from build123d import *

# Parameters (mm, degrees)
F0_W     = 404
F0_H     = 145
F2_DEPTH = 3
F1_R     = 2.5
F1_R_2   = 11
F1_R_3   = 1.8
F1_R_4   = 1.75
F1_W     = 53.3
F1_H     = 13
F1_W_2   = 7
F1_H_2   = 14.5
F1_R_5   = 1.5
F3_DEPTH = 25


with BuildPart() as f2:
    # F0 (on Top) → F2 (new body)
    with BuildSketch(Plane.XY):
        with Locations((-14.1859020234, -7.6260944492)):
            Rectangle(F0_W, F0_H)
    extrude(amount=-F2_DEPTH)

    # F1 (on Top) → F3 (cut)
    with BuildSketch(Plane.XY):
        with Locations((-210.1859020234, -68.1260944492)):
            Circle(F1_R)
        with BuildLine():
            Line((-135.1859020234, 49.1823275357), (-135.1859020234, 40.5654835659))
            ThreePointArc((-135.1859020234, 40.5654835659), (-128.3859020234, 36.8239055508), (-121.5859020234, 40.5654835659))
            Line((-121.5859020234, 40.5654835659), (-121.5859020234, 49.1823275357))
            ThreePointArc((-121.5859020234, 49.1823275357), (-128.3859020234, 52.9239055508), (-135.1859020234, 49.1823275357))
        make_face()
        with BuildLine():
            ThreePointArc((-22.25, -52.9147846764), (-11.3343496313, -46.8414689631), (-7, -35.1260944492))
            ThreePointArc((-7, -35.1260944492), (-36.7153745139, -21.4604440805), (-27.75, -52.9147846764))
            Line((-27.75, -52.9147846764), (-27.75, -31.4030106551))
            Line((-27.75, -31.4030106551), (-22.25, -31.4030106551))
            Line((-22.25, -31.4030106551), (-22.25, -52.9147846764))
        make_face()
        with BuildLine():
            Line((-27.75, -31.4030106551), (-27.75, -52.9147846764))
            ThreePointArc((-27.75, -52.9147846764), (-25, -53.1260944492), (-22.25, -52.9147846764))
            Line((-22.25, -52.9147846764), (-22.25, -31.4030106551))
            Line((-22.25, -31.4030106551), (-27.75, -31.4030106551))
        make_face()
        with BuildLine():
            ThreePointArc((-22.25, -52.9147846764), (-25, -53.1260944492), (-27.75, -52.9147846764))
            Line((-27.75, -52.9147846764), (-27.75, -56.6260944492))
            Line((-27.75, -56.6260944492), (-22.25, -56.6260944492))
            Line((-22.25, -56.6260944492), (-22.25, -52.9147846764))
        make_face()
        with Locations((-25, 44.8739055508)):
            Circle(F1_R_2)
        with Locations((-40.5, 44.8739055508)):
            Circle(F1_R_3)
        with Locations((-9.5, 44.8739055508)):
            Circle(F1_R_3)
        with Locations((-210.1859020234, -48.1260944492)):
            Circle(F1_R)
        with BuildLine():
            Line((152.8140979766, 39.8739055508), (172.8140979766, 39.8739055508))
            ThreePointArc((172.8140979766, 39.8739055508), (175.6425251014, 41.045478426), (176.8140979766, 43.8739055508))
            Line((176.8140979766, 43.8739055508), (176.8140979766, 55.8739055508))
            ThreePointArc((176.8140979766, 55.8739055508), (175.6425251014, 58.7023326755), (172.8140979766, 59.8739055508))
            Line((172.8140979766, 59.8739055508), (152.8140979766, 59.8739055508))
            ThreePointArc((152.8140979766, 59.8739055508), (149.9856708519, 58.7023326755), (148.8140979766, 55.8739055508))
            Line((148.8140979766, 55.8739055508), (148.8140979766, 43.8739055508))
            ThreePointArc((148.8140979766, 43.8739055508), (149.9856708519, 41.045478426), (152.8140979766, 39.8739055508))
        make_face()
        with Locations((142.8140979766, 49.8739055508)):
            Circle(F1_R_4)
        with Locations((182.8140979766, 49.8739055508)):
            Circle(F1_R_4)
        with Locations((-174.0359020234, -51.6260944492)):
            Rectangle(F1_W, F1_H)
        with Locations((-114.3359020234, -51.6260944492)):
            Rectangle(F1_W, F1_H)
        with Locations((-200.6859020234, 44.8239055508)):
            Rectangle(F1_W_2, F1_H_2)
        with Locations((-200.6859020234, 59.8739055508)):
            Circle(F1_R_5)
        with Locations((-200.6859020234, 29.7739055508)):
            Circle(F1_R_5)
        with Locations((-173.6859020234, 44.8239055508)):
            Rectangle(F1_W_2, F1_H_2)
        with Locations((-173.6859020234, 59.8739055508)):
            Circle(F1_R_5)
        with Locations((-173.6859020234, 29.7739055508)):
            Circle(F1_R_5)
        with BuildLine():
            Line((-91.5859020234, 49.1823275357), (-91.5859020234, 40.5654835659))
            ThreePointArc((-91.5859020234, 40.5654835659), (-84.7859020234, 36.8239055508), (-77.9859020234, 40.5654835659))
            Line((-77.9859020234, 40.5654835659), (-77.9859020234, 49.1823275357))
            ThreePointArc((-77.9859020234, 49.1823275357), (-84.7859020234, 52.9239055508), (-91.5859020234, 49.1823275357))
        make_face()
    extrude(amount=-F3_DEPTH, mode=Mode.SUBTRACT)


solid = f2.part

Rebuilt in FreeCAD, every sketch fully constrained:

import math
import FreeCAD as App
import Part
import Sketcher

V = App.Vector


def add_polygon(sketch, points):
    """Adds a closed chain of lines whose ends are joined by coincident constraints."""
    first, n = sketch.GeometryCount, len(points)
    for a, b in zip(points, points[1:] + points[:1]):
        sketch.addGeometry(Part.LineSegment(App.Vector(*a, 0), App.Vector(*b, 0)), False)
    for i in range(n):
        sketch.addConstraint(Sketcher.Constraint("Coincident", first + i, 2, first + (i + 1) % n, 1))

doc = App.newDocument("Part")
body = doc.addObject("PartDesign::Body", "Body")

sketch1 = doc.addObject("Sketcher::SketchObject", "Sketch")
body.addObject(sketch1)
sketch1.AttachmentSupport = (doc.XY_Plane, [""])
sketch1.MapMode = "FlatFace"
add_polygon(sketch1, [(-216.185902, 64.873906), (-216.185902, -80.126094), (187.814098, -80.126094), (187.814098, 64.873906)])
sketch1.addConstraint(Sketcher.Constraint("Vertical", 0))
sketch1.addConstraint(Sketcher.Constraint("Horizontal", 1))
sketch1.addConstraint(Sketcher.Constraint("Vertical", 2))
sketch1.addConstraint(Sketcher.Constraint("Horizontal", 3))
sketch1.addConstraint(Sketcher.Constraint("DistanceX", 1, 1, 1, 2, 404.0))
sketch1.addConstraint(Sketcher.Constraint("DistanceY", 0, 2, 0, 1, 145.0))
sketch1.addConstraint(Sketcher.Constraint("DistanceX", 0, 2, -1, 1, 216.185902))
sketch1.addConstraint(Sketcher.Constraint("DistanceY", 0, 2, -1, 1, 80.126094))
pad1 = doc.addObject("PartDesign::Pad", "Pad")
body.addObject(pad1)
pad1.Profile = sketch1
pad1.Length = 3
pad1.Reversed = True

sketch2 = doc.addObject("Sketcher::SketchObject", "Sketch001")
body.addObject(sketch2)
sketch2.AttachmentSupport = (doc.XY_Plane, [""])
sketch2.MapMode = "FlatFace"
sketch2.addGeometry(Part.Circle(V(-210.185902, -68.126094, 0), V(0, 0, 1), 2.5), False)
sketch2.addGeometry(Part.LineSegment(V(-135.185902, 49.182328, 0), V(-135.185902, 40.565484, 0)), False)
sketch2.addGeometry(Part.ArcOfCircle(Part.Circle(V(-128.385902, 44.873906, 0), V(0, 0, 1), 8.05), math.radians(-147.642002), math.radians(-32.357998)), False)
sketch2.addGeometry(Part.LineSegment(V(-121.585902, 40.565484, 0), V(-121.585902, 49.182328, 0)), False)
sketch2.addGeometry(Part.ArcOfCircle(Part.Circle(V(-128.385902, 44.873906, 0), V(0, 0, 1), 8.05), math.radians(32.357998), math.radians(147.642002)), False)
sketch2.addGeometry(Part.ArcOfCircle(Part.Circle(V(-25, -35.126094, 0), V(0, 0, 1), 18), math.radians(-81.212063), math.radians(0)), False)
sketch2.addGeometry(Part.ArcOfCircle(Part.Circle(V(-25, -35.126094, 0), V(0, 0, 1), 18), math.radians(0), math.radians(261.212063)), False)
sketch2.addGeometry(Part.LineSegment(V(-27.75, -52.914785, 0), V(-27.75, -56.626094, 0)), False)
sketch2.addGeometry(Part.LineSegment(V(-27.75, -56.626094, 0), V(-22.25, -56.626094, 0)), False)
sketch2.addGeometry(Part.LineSegment(V(-22.25, -56.626094, 0), V(-22.25, -52.914785, 0)), False)
sketch2.addGeometry(Part.Circle(V(-25, 44.873906, 0), V(0, 0, 1), 11), False)
sketch2.addGeometry(Part.Circle(V(-40.5, 44.873906, 0), V(0, 0, 1), 1.8), False)
sketch2.addGeometry(Part.Circle(V(-9.5, 44.873906, 0), V(0, 0, 1), 1.8), False)
sketch2.addGeometry(Part.Circle(V(-210.185902, -48.126094, 0), V(0, 0, 1), 2.5), False)
sketch2.addGeometry(Part.LineSegment(V(152.814098, 39.873906, 0), V(172.814098, 39.873906, 0)), False)
sketch2.addGeometry(Part.ArcOfCircle(Part.Circle(V(172.814098, 43.873906, 0), V(0, 0, 1), 4), math.radians(-90), math.radians(0)), False)
sketch2.addGeometry(Part.LineSegment(V(176.814098, 43.873906, 0), V(176.814098, 55.873906, 0)), False)
sketch2.addGeometry(Part.ArcOfCircle(Part.Circle(V(172.814098, 55.873906, 0), V(0, 0, 1), 4), math.radians(0), math.radians(90)), False)
sketch2.addGeometry(Part.LineSegment(V(172.814098, 59.873906, 0), V(152.814098, 59.873906, 0)), False)
sketch2.addGeometry(Part.ArcOfCircle(Part.Circle(V(152.814098, 55.873906, 0), V(0, 0, 1), 4), math.radians(90), math.radians(180)), False)
sketch2.addGeometry(Part.LineSegment(V(148.814098, 55.873906, 0), V(148.814098, 43.873906, 0)), False)
sketch2.addGeometry(Part.ArcOfCircle(Part.Circle(V(152.814098, 43.873906, 0), V(0, 0, 1), 4), math.radians(180), math.radians(270)), False)
sketch2.addGeometry(Part.Circle(V(142.814098, 49.873906, 0), V(0, 0, 1), 1.75), False)
sketch2.addGeometry(Part.Circle(V(182.814098, 49.873906, 0), V(0, 0, 1), 1.75), False)
add_polygon(sketch2, [(-200.685902, -45.126094), (-200.685902, -58.126094), (-147.385902, -58.126094), (-147.385902, -45.126094)])
add_polygon(sketch2, [(-140.985902, -45.126094), (-140.985902, -58.126094), (-87.685902, -58.126094), (-87.685902, -45.126094)])
add_polygon(sketch2, [(-204.185902, 52.073906), (-204.185902, 37.573906), (-197.185902, 37.573906), (-197.185902, 52.073906)])
sketch2.addGeometry(Part.Circle(V(-200.685902, 59.873906, 0), V(0, 0, 1), 1.5), False)
sketch2.addGeometry(Part.Circle(V(-200.685902, 29.773906, 0), V(0, 0, 1), 1.5), False)
add_polygon(sketch2, [(-177.185902, 52.073906), (-177.185902, 37.573906), (-170.185902, 37.573906), (-170.185902, 52.073906)])
sketch2.addGeometry(Part.Circle(V(-173.685902, 59.873906, 0), V(0, 0, 1), 1.5), False)
sketch2.addGeometry(Part.Circle(V(-173.685902, 29.773906, 0), V(0, 0, 1), 1.5), False)
sketch2.addGeometry(Part.LineSegment(V(-91.585902, 49.182328, 0), V(-91.585902, 40.565484, 0)), False)
sketch2.addGeometry(Part.ArcOfCircle(Part.Circle(V(-84.785902, 44.873906, 0), V(0, 0, 1), 8.05), math.radians(-147.642002), math.radians(-32.357998)), False)
sketch2.addGeometry(Part.LineSegment(V(-77.985902, 40.565484, 0), V(-77.985902, 49.182328, 0)), False)
sketch2.addGeometry(Part.ArcOfCircle(Part.Circle(V(-84.785902, 44.873906, 0), V(0, 0, 1), 8.05), math.radians(32.357998), math.radians(147.642002)), False)
sketch2.addConstraint(Sketcher.Constraint("Coincident", 1, 2, 2, 1))
sketch2.addConstraint(Sketcher.Constraint("Coincident", 2, 2, 3, 1))
sketch2.addConstraint(Sketcher.Constraint("Coincident", 3, 2, 4, 1))
sketch2.addConstraint(Sketcher.Constraint("Coincident", 4, 2, 1, 1))
sketch2.addConstraint(Sketcher.Constraint("Tangent", 5, 2, 6, 1))
sketch2.addConstraint(Sketcher.Constraint("Coincident", 6, 2, 7, 1))
sketch2.addConstraint(Sketcher.Constraint("Coincident", 7, 2, 8, 1))
sketch2.addConstraint(Sketcher.Constraint("Coincident", 8, 2, 9, 1))
sketch2.addConstraint(Sketcher.Constraint("Coincident", 9, 2, 5, 1))
sketch2.addConstraint(Sketcher.Constraint("Tangent", 14, 2, 15, 1))
sketch2.addConstraint(Sketcher.Constraint("Tangent", 15, 2, 16, 1))
sketch2.addConstraint(Sketcher.Constraint("Tangent", 16, 2, 17, 1))
sketch2.addConstraint(Sketcher.Constraint("Tangent", 17, 2, 18, 1))
sketch2.addConstraint(Sketcher.Constraint("Tangent", 18, 2, 19, 1))
sketch2.addConstraint(Sketcher.Constraint("Tangent", 19, 2, 20, 1))
sketch2.addConstraint(Sketcher.Constraint("Tangent", 20, 2, 21, 1))
sketch2.addConstraint(Sketcher.Constraint("Tangent", 21, 2, 14, 1))
sketch2.addConstraint(Sketcher.Constraint("Coincident", 44, 2, 45, 1))
sketch2.addConstraint(Sketcher.Constraint("Coincident", 45, 2, 46, 1))
sketch2.addConstraint(Sketcher.Constraint("Coincident", 46, 2, 47, 1))
sketch2.addConstraint(Sketcher.Constraint("Coincident", 47, 2, 44, 1))
sketch2.addConstraint(Sketcher.Constraint("Vertical", 1))
sketch2.addConstraint(Sketcher.Constraint("Vertical", 3))
sketch2.addConstraint(Sketcher.Constraint("Vertical", 7))
sketch2.addConstraint(Sketcher.Constraint("Horizontal", 8))
sketch2.addConstraint(Sketcher.Constraint("Vertical", 9))
sketch2.addConstraint(Sketcher.Constraint("Horizontal", 14))
sketch2.addConstraint(Sketcher.Constraint("Vertical", 16))
sketch2.addConstraint(Sketcher.Constraint("Horizontal", 18))
sketch2.addConstraint(Sketcher.Constraint("Vertical", 20))
sketch2.addConstraint(Sketcher.Constraint("Vertical", 24))
sketch2.addConstraint(Sketcher.Constraint("Horizontal", 25))
sketch2.addConstraint(Sketcher.Constraint("Vertical", 26))
sketch2.addConstraint(Sketcher.Constraint("Horizontal", 27))
sketch2.addConstraint(Sketcher.Constraint("Vertical", 28))
sketch2.addConstraint(Sketcher.Constraint("Horizontal", 29))
sketch2.addConstraint(Sketcher.Constraint("Vertical", 30))
sketch2.addConstraint(Sketcher.Constraint("Horizontal", 31))
sketch2.addConstraint(Sketcher.Constraint("Vertical", 32))
sketch2.addConstraint(Sketcher.Constraint("Horizontal", 33))
sketch2.addConstraint(Sketcher.Constraint("Vertical", 34))
sketch2.addConstraint(Sketcher.Constraint("Horizontal", 35))
sketch2.addConstraint(Sketcher.Constraint("Vertical", 38))
sketch2.addConstraint(Sketcher.Constraint("Horizontal", 39))
sketch2.addConstraint(Sketcher.Constraint("Vertical", 40))
sketch2.addConstraint(Sketcher.Constraint("Horizontal", 41))
sketch2.addConstraint(Sketcher.Constraint("Vertical", 44))
sketch2.addConstraint(Sketcher.Constraint("Vertical", 46))
sketch2.addConstraint(Sketcher.Constraint("Coincident", 4, 3, 2, 3))
sketch2.addConstraint(Sketcher.Constraint("Coincident", 47, 3, 45, 3))
sketch2.addConstraint(Sketcher.Constraint("Equal", 2, 4))
sketch2.addConstraint(Sketcher.Constraint("Equal", 5, 6))
sketch2.addConstraint(Sketcher.Constraint("Equal", 11, 12))
sketch2.addConstraint(Sketcher.Constraint("Equal", 0, 13))
sketch2.addConstraint(Sketcher.Constraint("Equal", 15, 17))
sketch2.addConstraint(Sketcher.Constraint("Equal", 17, 19))
sketch2.addConstraint(Sketcher.Constraint("Equal", 19, 21))
sketch2.addConstraint(Sketcher.Constraint("Equal", 22, 23))
sketch2.addConstraint(Sketcher.Constraint("Equal", 36, 37))
sketch2.addConstraint(Sketcher.Constraint("Equal", 37, 42))
sketch2.addConstraint(Sketcher.Constraint("Equal", 42, 43))
sketch2.addConstraint(Sketcher.Constraint("Equal", 4, 45))
sketch2.addConstraint(Sketcher.Constraint("Equal", 45, 47))
sketch2.addConstraint(Sketcher.Constraint("Horizontal", 4, 3, 10, 3))
sketch2.addConstraint(Sketcher.Constraint("Horizontal", 10, 3, 11, 3))
sketch2.addConstraint(Sketcher.Constraint("Horizontal", 11, 3, 12, 3))
sketch2.addConstraint(Sketcher.Constraint("Horizontal", 22, 3, 23, 3))
sketch2.addConstraint(Sketcher.Constraint("Horizontal", 36, 3, 42, 3))
sketch2.addConstraint(Sketcher.Constraint("Horizontal", 37, 3, 43, 3))
sketch2.addConstraint(Sketcher.Constraint("Horizontal", 12, 3, 45, 3))
sketch2.addConstraint(Sketcher.Constraint("Horizontal", 1, 2, 2, 2))
sketch2.addConstraint(Sketcher.Constraint("Horizontal", 6, 3, 5, 2))
sketch2.addConstraint(Sketcher.Constraint("Horizontal", 6, 2, 9, 2))
sketch2.addConstraint(Sketcher.Constraint("Horizontal", 42, 3, 17, 2))
sketch2.addConstraint(Sketcher.Constraint("Horizontal", 25, 2, 28, 2))
sketch2.addConstraint(Sketcher.Constraint("Horizontal", 27, 2, 30, 2))
sketch2.addConstraint(Sketcher.Constraint("Horizontal", 33, 2, 38, 2))
sketch2.addConstraint(Sketcher.Constraint("Horizontal", 35, 2, 40, 2))
sketch2.addConstraint(Sketcher.Constraint("Horizontal", 2, 2, 44, 2))
sketch2.addConstraint(Sketcher.Constraint("Horizontal", 44, 2, 45, 2))
sketch2.addConstraint(Sketcher.Constraint("Vertical", 6, 3, 10, 3))
sketch2.addConstraint(Sketcher.Constraint("Vertical", 0, 3, 13, 3))
sketch2.addConstraint(Sketcher.Constraint("Vertical", 36, 3, 37, 3))
sketch2.addConstraint(Sketcher.Constraint("Vertical", 42, 3, 43, 3))
sketch2.addConstraint(Sketcher.Constraint("Vertical", 37, 3, 24, 2))
sketch2.addConstraint(Sketcher.Constraint("Equal", 27, 29))
sketch2.addConstraint(Sketcher.Constraint("Equal", 35, 39))
sketch2.addConstraint(Sketcher.Constraint("Diameter", 0, 5.0))
sketch2.addConstraint(Sketcher.Constraint("Diameter", 10, 22.0))
sketch2.addConstraint(Sketcher.Constraint("Diameter", 36, 3.0))
sketch2.addConstraint(Sketcher.Constraint("Radius", 5, 18.0))
sketch2.addConstraint(Sketcher.Constraint("Radius", 15, 4.0))
sketch2.addConstraint(Sketcher.Constraint("Diameter", 11, 3.6))
sketch2.addConstraint(Sketcher.Constraint("Diameter", 22, 3.5))
sketch2.addConstraint(Sketcher.Constraint("DistanceX", 14, 1, 14, 2, 20.0))
sketch2.addConstraint(Sketcher.Constraint("DistanceX", 33, 1, 33, 2, 7.0))
sketch2.addConstraint(Sketcher.Constraint("DistanceY", 16, 1, 16, 2, 12.0))
sketch2.addConstraint(Sketcher.Constraint("DistanceY", 24, 2, 24, 1, 13.0))
sketch2.addConstraint(Sketcher.Constraint("Radius", 2, 8.05))
sketch2.addConstraint(Sketcher.Constraint("DistanceX", 8, 1, 8, 2, 5.5))
sketch2.addConstraint(Sketcher.Constraint("DistanceX", 25, 1, 25, 2, 53.3))
sketch2.addConstraint(Sketcher.Constraint("DistanceY", 32, 2, 32, 1, 14.5))
sketch2.addConstraint(Sketcher.Constraint("DistanceX", 5, 3, -1, 1, 25.0))
sketch2.addConstraint(Sketcher.Constraint("DistanceY", 0, 3, 2, 3, 113.0))
sketch2.addConstraint(Sketcher.Constraint("DistanceY", 5, 3, 2, 3, 80.0))
sketch2.addConstraint(Sketcher.Constraint("DistanceX", 11, 3, 12, 3, 31.0))
sketch2.addConstraint(Sketcher.Constraint("DistanceY", 0, 3, 13, 3, 20.0))
sketch2.addConstraint(Sketcher.Constraint("DistanceY", 15, 3, 12, 3, 1.0))
sketch2.addConstraint(Sketcher.Constraint("DistanceX", 22, 3, 19, 3, 10.0))
sketch2.addConstraint(Sketcher.Constraint("DistanceY", 22, 3, 19, 3, 6.0))
sketch2.addConstraint(Sketcher.Constraint("DistanceX", 15, 3, 23, 3, 10.0))
sketch2.addConstraint(Sketcher.Constraint("DistanceX", 36, 3, 42, 3, 27.0))
sketch2.addConstraint(Sketcher.Constraint("DistanceY", 24, 2, 13, 3, 10.0))
sketch2.addConstraint(Sketcher.Constraint("DistanceX", 32, 2, 1, 2, 69.0))
sketch2.addConstraint(Sketcher.Constraint("DistanceX", 33, 2, 38, 2, 20.0))
sketch2.addConstraint(Sketcher.Constraint("DistanceX", 2, 2, 44, 2, 30.0))
sketch2.addConstraint(Sketcher.Constraint("DistanceX", 11, 3, -1, 1, 40.5))
sketch2.addConstraint(Sketcher.Constraint("DistanceX", 0, 3, 2, 3, 81.8))
sketch2.addConstraint(Sketcher.Constraint("DistanceX", 36, 3, 2, 3, 72.3))
sketch2.addConstraint(Sketcher.Constraint("DistanceY", 37, 3, 36, 3, 30.1))
sketch2.addConstraint(Sketcher.Constraint("DistanceX", 2, 3, 45, 3, 43.6))
sketch2.addConstraint(Sketcher.Constraint("DistanceY", 7, 2, 5, 3, 21.5))
sketch2.addConstraint(Sketcher.Constraint("DistanceX", 25, 2, 28, 2, 6.4))
sketch2.addConstraint(Sketcher.Constraint("DistanceY", 37, 3, 32, 2, 7.8))
sketch2.addConstraint(Sketcher.Constraint("DistanceX", 0, 3, -1, 1, 210.185902))
sketch2.addConstraint(Sketcher.Constraint("DistanceY", 0, 3, -1, 1, 68.126094))
sketch2.addConstraint(Sketcher.Constraint("DistanceX", -1, 1, 15, 3, 172.814098))
pocket1 = doc.addObject("PartDesign::Pocket", "Pocket")
body.addObject(pocket1)
pocket1.Profile = sketch2
pocket1.Length = 25

doc.recompute()
